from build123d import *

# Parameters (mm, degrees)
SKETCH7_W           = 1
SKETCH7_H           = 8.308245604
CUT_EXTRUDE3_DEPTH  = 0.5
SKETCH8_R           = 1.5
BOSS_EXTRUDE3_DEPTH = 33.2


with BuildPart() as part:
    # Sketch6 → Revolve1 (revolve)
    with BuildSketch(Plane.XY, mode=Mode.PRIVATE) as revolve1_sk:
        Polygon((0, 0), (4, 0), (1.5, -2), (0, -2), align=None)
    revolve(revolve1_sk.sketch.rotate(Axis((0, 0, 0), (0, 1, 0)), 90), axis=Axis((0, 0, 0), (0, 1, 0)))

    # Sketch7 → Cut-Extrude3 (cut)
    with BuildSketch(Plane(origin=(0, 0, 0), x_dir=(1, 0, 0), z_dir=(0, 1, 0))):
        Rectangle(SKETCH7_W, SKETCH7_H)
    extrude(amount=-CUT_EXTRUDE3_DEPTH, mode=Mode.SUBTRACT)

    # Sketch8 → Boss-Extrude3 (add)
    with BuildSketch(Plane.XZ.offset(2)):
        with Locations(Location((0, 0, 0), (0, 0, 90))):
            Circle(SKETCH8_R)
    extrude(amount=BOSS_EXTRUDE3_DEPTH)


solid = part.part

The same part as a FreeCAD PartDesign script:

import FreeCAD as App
import Part
import Sketcher
Q = App.Units.Quantity

doc = App.newDocument("Part")
body = doc.addObject("PartDesign::Body", "Body")

sketch1 = body.newObject("Sketcher::SketchObject", "Sketch")
sketch1.AttachmentSupport = (doc.getObject("XY_Plane"), [""])
sketch1.MapMode = "FlatFace"
sketch1.addGeometry([
    Part.LineSegment(App.Vector(4, 0, 0), App.Vector(0, 0, 0)),
    Part.LineSegment(App.Vector(0, 0, 0), App.Vector(0, -2, 0)),
    Part.LineSegment(App.Vector(0, -2, 0), App.Vector(1.5, -2, 0)),
    Part.LineSegment(App.Vector(1.5, -2, 0), App.Vector(4, 0, 0)),
], False)
sketch1.addConstraint([
    Sketcher.Constraint("Coincident", 0, 2, 1, 1),
    Sketcher.Constraint("Coincident", 1, 2, 2, 1),
    Sketcher.Constraint("Coincident", 2, 2, 3, 1),
    Sketcher.Constraint("Coincident", 3, 2, 0, 1),
    Sketcher.Constraint("Horizontal", 0),
    Sketcher.Constraint("Vertical", 1),
    Sketcher.Constraint("Horizontal", 2),
    Sketcher.Constraint("Coincident", 0, 2, -1, 1),
    Sketcher.Constraint("DistanceX", 0, 2, 0, 1, Q("4 mm")),
    Sketcher.Constraint("DistanceY", 1, 2, 1, 1, Q("2 mm")),
    Sketcher.Constraint("DistanceX", 2, 1, 2, 2, Q("1.5 mm")),
])
revolution = body.newObject("PartDesign::Revolution", "Revolution")
revolution.Profile = sketch1
revolution.ReferenceAxis = (sketch1, ["V_Axis"])
revolution.Angle = 360

sketch2 = body.newObject("Sketcher::SketchObject", "Sketch001")
sketch2.AttachmentSupport = (doc.getObject("XZ_Plane"), [""])
sketch2.MapMode = "FlatFace"
sketch2.addGeometry([
    Part.LineSegment(App.Vector(-0.5, -4.154123, 0), App.Vector(-0.5, 4.154123, 0)),
    Part.LineSegment(App.Vector(-0.5, 4.154123, 0), App.Vector(0.5, 4.154123, 0)),
    Part.LineSegment(App.Vector(0.5, 4.154123, 0), App.Vector(0.5, -4.154123, 0)),
    Part.LineSegment(App.Vector(0.5, -4.154123, 0), App.Vector(-0.5, -4.154123, 0)),
], False)
sketch2.addConstraint([
    Sketcher.Constraint("Coincident", 0, 2, 1, 1),
    Sketcher.Constraint("Coincident", 1, 2, 2, 1),
    Sketcher.Constraint("Coincident", 2, 2, 3, 1),
    Sketcher.Constraint("Coincident", 3, 2, 0, 1),
    Sketcher.Constraint("Vertical", 0),
    Sketcher.Constraint("Horizontal", 1),
    Sketcher.Constraint("Vertical", 2),
    Sketcher.Constraint("Horizontal", 3),
    Sketcher.Constraint("Symmetric", 0, 2, 2, 2, -1, 1),
    Sketcher.Constraint("DistanceX", 1, 1, 1, 2, Q("1 mm")),
    Sketcher.Constraint("DistanceY", 0, 1, 0, 2, Q("8.308246 mm")),
])
pocket1 = body.newObject("PartDesign::Pocket", "Pocket")
pocket1.Profile = sketch2
pocket1.Length = 0.5
pocket1.Reversed = True

sketch3 = body.newObject("Sketcher::SketchObject", "Sketch002")
sketch3.AttachmentSupport = (doc.getObject("XZ_Plane"), [""])
sketch3.MapMode = "FlatFace"
sketch3.AttachmentOffset = App.Placement(App.Vector(0, 0, 2), App.Rotation())
sketch3.addGeometry(Part.Circle(App.Vector(0, 0, 0), App.Vector(0, 0, 1), 1.5), False)
sketch3.addConstraint([
    Sketcher.Constraint("Coincident", 0, 3, -1, 1),
    Sketcher.Constraint("Diameter", 0, Q("3 mm")),
])
pad1 = body.newObject("PartDesign::Pad", "Pad")
pad1.Profile = sketch3
pad1.Length = 33.2

doc.recompute()
